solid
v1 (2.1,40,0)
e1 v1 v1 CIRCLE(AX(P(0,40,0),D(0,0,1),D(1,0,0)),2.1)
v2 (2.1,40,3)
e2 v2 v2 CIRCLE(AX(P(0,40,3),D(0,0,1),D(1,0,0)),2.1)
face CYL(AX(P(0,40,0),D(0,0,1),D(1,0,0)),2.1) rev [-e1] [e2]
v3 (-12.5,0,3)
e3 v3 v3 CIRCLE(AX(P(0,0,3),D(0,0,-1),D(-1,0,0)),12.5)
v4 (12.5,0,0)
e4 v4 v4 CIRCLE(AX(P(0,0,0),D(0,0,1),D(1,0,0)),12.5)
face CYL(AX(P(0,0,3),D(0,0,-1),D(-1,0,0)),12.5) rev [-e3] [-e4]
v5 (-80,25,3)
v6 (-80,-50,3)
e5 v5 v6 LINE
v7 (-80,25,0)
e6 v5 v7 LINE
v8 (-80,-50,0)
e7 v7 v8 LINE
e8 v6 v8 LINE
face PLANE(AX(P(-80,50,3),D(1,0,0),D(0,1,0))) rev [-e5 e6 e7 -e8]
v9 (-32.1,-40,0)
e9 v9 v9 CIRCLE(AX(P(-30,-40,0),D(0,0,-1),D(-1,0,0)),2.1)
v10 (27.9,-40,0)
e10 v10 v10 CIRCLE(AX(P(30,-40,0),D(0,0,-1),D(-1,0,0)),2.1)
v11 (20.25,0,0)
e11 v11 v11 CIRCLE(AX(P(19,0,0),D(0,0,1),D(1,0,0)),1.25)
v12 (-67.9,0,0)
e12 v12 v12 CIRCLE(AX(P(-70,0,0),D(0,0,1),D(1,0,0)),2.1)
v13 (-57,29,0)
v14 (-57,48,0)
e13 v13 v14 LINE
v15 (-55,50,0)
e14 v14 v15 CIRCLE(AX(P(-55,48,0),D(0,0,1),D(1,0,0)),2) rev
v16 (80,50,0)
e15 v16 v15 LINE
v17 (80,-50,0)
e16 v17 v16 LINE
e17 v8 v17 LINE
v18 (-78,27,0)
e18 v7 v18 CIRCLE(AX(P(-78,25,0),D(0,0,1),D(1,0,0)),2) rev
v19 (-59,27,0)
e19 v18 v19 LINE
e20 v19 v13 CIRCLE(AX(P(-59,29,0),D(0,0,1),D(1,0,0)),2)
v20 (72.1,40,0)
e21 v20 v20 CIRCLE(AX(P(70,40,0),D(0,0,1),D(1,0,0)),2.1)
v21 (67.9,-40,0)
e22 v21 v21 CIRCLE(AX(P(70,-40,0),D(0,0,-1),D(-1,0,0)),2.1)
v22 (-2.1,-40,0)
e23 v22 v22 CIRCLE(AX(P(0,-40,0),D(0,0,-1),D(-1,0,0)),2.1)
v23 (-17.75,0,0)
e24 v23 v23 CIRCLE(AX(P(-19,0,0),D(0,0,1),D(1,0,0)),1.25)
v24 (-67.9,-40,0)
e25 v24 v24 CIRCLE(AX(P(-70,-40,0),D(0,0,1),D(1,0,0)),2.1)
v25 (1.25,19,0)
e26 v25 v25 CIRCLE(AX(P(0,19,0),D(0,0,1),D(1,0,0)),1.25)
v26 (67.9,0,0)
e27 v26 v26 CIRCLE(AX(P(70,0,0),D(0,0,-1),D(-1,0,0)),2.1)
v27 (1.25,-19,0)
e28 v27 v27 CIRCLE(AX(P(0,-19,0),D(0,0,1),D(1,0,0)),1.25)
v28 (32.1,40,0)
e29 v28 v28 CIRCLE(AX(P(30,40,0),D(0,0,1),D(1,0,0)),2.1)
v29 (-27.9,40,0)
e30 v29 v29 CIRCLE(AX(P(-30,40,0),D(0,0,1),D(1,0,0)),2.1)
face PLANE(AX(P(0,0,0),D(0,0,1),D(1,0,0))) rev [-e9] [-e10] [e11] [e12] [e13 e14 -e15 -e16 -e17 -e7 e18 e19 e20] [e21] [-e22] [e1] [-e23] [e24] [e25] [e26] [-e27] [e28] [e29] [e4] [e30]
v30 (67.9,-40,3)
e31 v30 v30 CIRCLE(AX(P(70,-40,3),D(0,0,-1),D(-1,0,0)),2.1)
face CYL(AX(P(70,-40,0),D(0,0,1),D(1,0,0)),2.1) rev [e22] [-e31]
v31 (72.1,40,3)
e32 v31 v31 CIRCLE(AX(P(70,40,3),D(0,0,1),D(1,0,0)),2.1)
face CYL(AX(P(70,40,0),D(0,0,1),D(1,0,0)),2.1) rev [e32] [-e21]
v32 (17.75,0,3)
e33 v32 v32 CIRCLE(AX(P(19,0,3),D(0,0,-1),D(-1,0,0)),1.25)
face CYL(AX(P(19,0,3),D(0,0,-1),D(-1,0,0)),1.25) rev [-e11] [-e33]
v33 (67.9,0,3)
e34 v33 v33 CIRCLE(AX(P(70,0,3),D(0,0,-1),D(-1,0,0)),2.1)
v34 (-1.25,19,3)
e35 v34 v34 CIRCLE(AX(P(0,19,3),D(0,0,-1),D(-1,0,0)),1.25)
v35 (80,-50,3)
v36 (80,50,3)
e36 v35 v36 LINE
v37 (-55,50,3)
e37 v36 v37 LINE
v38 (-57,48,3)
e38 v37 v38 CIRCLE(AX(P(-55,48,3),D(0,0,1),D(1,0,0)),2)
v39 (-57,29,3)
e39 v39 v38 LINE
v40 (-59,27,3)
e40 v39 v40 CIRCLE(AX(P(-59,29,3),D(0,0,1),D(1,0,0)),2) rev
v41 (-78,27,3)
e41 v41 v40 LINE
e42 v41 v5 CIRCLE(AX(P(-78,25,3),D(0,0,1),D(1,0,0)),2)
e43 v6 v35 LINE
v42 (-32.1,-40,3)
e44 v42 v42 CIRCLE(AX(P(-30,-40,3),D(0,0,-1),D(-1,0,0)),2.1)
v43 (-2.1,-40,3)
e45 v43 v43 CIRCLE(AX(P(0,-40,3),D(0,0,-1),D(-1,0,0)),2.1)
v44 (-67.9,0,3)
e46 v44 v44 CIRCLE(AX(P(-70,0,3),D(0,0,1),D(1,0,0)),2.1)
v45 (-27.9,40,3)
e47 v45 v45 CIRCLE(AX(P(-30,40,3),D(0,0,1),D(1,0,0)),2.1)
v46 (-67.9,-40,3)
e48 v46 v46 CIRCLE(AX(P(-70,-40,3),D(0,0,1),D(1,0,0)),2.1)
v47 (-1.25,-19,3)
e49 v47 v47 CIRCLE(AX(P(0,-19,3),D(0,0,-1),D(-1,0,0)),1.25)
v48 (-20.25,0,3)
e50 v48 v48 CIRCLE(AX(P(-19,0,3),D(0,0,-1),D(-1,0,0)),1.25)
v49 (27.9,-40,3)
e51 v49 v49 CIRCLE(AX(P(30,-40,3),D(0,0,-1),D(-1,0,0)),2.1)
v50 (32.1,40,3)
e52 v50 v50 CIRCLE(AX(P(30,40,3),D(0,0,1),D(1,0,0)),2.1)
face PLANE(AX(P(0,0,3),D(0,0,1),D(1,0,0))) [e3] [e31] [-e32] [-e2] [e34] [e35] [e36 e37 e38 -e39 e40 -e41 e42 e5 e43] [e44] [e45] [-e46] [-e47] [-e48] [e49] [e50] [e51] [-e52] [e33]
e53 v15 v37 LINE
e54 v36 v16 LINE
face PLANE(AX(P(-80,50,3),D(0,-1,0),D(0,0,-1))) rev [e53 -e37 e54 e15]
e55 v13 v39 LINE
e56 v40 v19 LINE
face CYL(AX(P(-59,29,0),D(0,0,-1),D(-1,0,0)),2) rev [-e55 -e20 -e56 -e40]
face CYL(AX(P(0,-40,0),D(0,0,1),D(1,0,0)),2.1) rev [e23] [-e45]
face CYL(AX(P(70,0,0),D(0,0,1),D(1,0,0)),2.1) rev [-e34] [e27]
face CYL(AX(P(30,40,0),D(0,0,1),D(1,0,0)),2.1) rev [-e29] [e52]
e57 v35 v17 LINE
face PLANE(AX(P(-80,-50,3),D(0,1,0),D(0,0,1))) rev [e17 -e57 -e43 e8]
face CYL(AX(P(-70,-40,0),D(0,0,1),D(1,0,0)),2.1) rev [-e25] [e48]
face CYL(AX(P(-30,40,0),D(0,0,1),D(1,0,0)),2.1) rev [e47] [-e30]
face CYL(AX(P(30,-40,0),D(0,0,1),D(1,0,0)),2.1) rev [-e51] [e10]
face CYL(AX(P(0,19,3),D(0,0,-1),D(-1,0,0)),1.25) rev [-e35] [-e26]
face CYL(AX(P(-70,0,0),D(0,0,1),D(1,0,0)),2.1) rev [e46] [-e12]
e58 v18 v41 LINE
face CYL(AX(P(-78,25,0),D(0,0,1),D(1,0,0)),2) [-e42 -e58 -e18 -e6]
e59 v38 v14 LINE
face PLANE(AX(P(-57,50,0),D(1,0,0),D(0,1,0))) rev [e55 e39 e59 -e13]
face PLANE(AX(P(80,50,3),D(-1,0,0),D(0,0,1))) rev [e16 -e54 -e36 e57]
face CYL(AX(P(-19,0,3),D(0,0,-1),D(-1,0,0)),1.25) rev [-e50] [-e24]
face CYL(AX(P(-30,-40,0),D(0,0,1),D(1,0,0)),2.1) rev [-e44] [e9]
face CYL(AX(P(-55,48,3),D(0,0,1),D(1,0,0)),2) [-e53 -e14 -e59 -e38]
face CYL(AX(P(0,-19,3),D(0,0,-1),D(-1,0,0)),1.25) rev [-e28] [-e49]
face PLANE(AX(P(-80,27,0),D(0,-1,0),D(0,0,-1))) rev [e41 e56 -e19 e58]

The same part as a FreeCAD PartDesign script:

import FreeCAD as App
import Part
import Sketcher


def edges_at(feature, points):
    """Names of the edges that pass closest to the given points."""
    edges = feature.Shape.Edges
    near = lambda p: min(range(len(edges)), key=lambda i: edges[i].distToShape(Part.Vertex(*p))[0])
    return sorted({f"Edge{near(p) + 1}" for p in points})


def add_polygon(sketch, points):
    """Adds a closed chain of lines whose ends are joined by coincident constraints."""
    first, n = sketch.GeometryCount, len(points)
    for a, b in zip(points, points[1:] + points[:1]):
        sketch.addGeometry(Part.LineSegment(App.Vector(*a, 0), App.Vector(*b, 0)), False)
    for i in range(n):
        sketch.addConstraint(Sketcher.Constraint("Coincident", first + i, 2, first + (i + 1) % n, 1))

doc = App.newDocument("Part")
body = doc.addObject("PartDesign::Body", "Body")

# Sketch on XY plane
sketch1 = body.newObject("Sketcher::SketchObject", "Sketch")
sketch1.AttachmentSupport = (doc.getObject("XY_Plane"), [""])
sketch1.MapMode = "FlatFace"
add_polygon(sketch1, [(-80, 50), (-80, -50), (80, -50), (80, 50)])  # lines 0-3
sketch1.addConstraint(Sketcher.Constraint("Vertical", 0))
sketch1.addConstraint(Sketcher.Constraint("Horizontal", 1))
sketch1.addConstraint(Sketcher.Constraint("Vertical", 2))
sketch1.addConstraint(Sketcher.Constraint("Horizontal", 3))
sketch1.addConstraint(Sketcher.Constraint("Symmetric", 0, 2, 2, 2, -1, 1))
sketch1.addConstraint(Sketcher.Constraint("DistanceX", 1, 1, 1, 2, 160.0))
sketch1.addConstraint(Sketcher.Constraint("DistanceY", 0, 2, 0, 1, 100.0))
pad1 = body.newObject("PartDesign::Pad", "Pad")
pad1.Profile = sketch1
pad1.Length = 3

# Sketch on XY plane
sketch2 = body.newObject("Sketcher::SketchObject", "Sketch001")
sketch2.AttachmentSupport = (doc.getObject("XY_Plane"), [""])
sketch2.MapMode = "FlatFace"
sketch2.AttachmentOffset = App.Placement(App.Vector(0, 0, 3), App.Rotation())
sketch2.addGeometry(Part.Circle(App.Vector(-70, 40, 0), App.Vector(0, 0, 1), 2.1), False)
sketch2.addGeometry(Part.Circle(App.Vector(-30, 40, 0), App.Vector(0, 0, 1), 2.1), False)
sketch2.addGeometry(Part.Circle(App.Vector(0, 40, 0), App.Vector(0, 0, 1), 2.1), False)
sketch2.addGeometry(Part.Circle(App.Vector(30, 40, 0), App.Vector(0, 0, 1), 2.1), False)
sketch2.addGeometry(Part.Circle(App.Vector(70, 40, 0), App.Vector(0, 0, 1), 2.1), False)
sketch2.addGeometry(Part.Circle(App.Vector(-70, 0, 0), App.Vector(0, 0, 1), 2.1), False)
sketch2.addGeometry(Part.Circle(App.Vector(-70, -40, 0), App.Vector(0, 0, 1), 2.1), False)
sketch2.addGeometry(Part.Circle(App.Vector(-70, -80, 0), App.Vector(0, 0, 1), 2.1), False)
sketch2.addGeometry(Part.Circle(App.Vector(-70, -120, 0), App.Vector(0, 0, 1), 2.1), False)
sketch2.addGeometry(Part.Circle(App.Vector(-70, -160, 0), App.Vector(0, 0, 1), 2.1), False)
sketch2.addGeometry(Part.Circle(App.Vector(-70, -200, 0), App.Vector(0, 0, 1), 2.1), False)
sketch2.addGeometry(Part.Circle(App.Vector(-70, -240, 0), App.Vector(0, 0, 1), 2.1), False)
sketch2.addGeometry(Part.Circle(App.Vector(-70, -280, 0), App.Vector(0, 0, 1), 2.1), False)
sketch2.addGeometry(Part.Circle(App.Vector(70, -280, 0), App.Vector(0, 0, 1), 2.1), False)
sketch2.addGeometry(Part.Circle(App.Vector(70, -240, 0), App.Vector(0, 0, 1), 2.1), False)
sketch2.addGeometry(Part.Circle(App.Vector(70, -200, 0), App.Vector(0, 0, 1), 2.1), False)
sketch2.addGeometry(Part.Circle(App.Vector(70, -160, 0), App.Vector(0, 0, 1), 2.1), False)
sketch2.addGeometry(Part.Circle(App.Vector(70, -120, 0), App.Vector(0, 0, 1), 2.1), False)
sketch2.addGeometry(Part.Circle(App.Vector(70, -80, 0), App.Vector(0, 0, 1), 2.1), False)
sketch2.addGeometry(Part.Circle(App.Vector(70, -40, 0), App.Vector(0, 0, 1), 2.1), False)
sketch2.addGeometry(Part.Circle(App.Vector(70, 0, 0), App.Vector(0, 0, 1), 2.1), False)
sketch2.addGeometry(Part.Circle(App.Vector(30, -40, 0), App.Vector(0, 0, 1), 2.1), False)
sketch2.addGeometry(Part.Circle(App.Vector(0, -40, 0), App.Vector(0, 0, 1), 2.1), False)
sketch2.addGeometry(Part.Circle(App.Vector(-30, -40, 0), App.Vector(0, 0, 1), 2.1), False)
sketch2.addConstraint(Sketcher.Constraint("Equal", 0, 1))
sketch2.addConstraint(Sketcher.Constraint("Equal", 1, 2))
sketch2.addConstraint(Sketcher.Constraint("Equal", 2, 3))
sketch2.addConstraint(Sketcher.Constraint("Equal", 3, 4))
sketch2.addConstraint(Sketcher.Constraint("Equal", 4, 5))
sketch2.addConstraint(Sketcher.Constraint("Equal", 5, 6))
sketch2.addConstraint(Sketcher.Constraint("Equal", 6, 7))
sketch2.addConstraint(Sketcher.Constraint("Equal", 7, 8))
sketch2.addConstraint(Sketcher.Constraint("Equal", 8, 9))
sketch2.addConstraint(Sketcher.Constraint("Equal", 9, 10))
sketch2.addConstraint(Sketcher.Constraint("Equal", 10, 11))
sketch2.addConstraint(Sketcher.Constraint("Equal", 11, 12))
sketch2.addConstraint(Sketcher.Constraint("Equal", 12, 13))
sketch2.addConstraint(Sketcher.Constraint("Equal", 13, 14))
sketch2.addConstraint(Sketcher.Constraint("Equal", 14, 15))
sketch2.addConstraint(Sketcher.Constraint("Equal", 15, 16))
sketch2.addConstraint(Sketcher.Constraint("Equal", 16, 17))
sketch2.addConstraint(Sketcher.Constraint("Equal", 17, 18))
sketch2.addConstraint(Sketcher.Constraint("Equal", 18, 19))
sketch2.addConstraint(Sketcher.Constraint("Equal", 19, 20))
sketch2.addConstraint(Sketcher.Constraint("Equal", 20, 21))
sketch2.addConstraint(Sketcher.Constraint("Equal", 21, 22))
sketch2.addConstraint(Sketcher.Constraint("Equal", 22, 23))
sketch2.addConstraint(Sketcher.Constraint("Symmetric", 4, 3, 6, 3, -1, 1))
sketch2.addConstraint(Sketcher.Constraint("Symmetric", 0, 3, 19, 3, -1, 1))
sketch2.addConstraint(Sketcher.Constraint("Symmetric", 5, 3, 20, 3, -1, 1))
sketch2.addConstraint(Sketcher.Constraint("Symmetric", 1, 3, 21, 3, -1, 1))
sketch2.addConstraint(Sketcher.Constraint("Symmetric", 2, 3, 22, 3, -1, 1))
sketch2.addConstraint(Sketcher.Constraint("Symmetric", 3, 3, 23, 3, -1, 1))
sketch2.addConstraint(Sketcher.Constraint("Symmetric", 1, 3, 3, 3, -2))
sketch2.addConstraint(Sketcher.Constraint("Symmetric", 0, 3, 4, 3, -2))
sketch2.addConstraint(Sketcher.Constraint("Symmetric", 12, 3, 13, 3, -2))
sketch2.addConstraint(Sketcher.Constraint("Symmetric", 11, 3, 14, 3, -2))
sketch2.addConstraint(Sketcher.Constraint("Symmetric", 10, 3, 15, 3, -2))
sketch2.addConstraint(Sketcher.Constraint("Symmetric", 9, 3, 16, 3, -2))
sketch2.addConstraint(Sketcher.Constraint("Symmetric", 8, 3, 17, 3, -2))
sketch2.addConstraint(Sketcher.Constraint("Symmetric", 7, 3, 18, 3, -2))
sketch2.addConstraint(Sketcher.Constraint("PointOnObject", 2, 3, -2))
sketch2.addConstraint(Sketcher.Constraint("PointOnObject", 5, 3, -1))
sketch2.addConstraint(Sketcher.Constraint("Horizontal", 0, 3, 1, 3))
sketch2.addConstraint(Sketcher.Constraint("Horizontal", 1, 3, 2, 3))
sketch2.addConstraint(Sketcher.Constraint("Vertical", 0, 3, 5, 3))
sketch2.addConstraint(Sketcher.Constraint("Vertical", 6, 3, 7, 3))
sketch2.addConstraint(Sketcher.Constraint("Vertical", 7, 3, 8, 3))
sketch2.addConstraint(Sketcher.Constraint("Vertical", 8, 3, 9, 3))
sketch2.addConstraint(Sketcher.Constraint("Vertical", 9, 3, 10, 3))
sketch2.addConstraint(Sketcher.Constraint("Vertical", 10, 3, 11, 3))
sketch2.addConstraint(Sketcher.Constraint("Vertical", 11, 3, 12, 3))
sketch2.addConstraint(Sketcher.Constraint("Diameter", 0, 4.2))
sketch2.addConstraint(Sketcher.Constraint("DistanceX", 0, 3, -1, 1, 70.0))
sketch2.addConstraint(Sketcher.Constraint("DistanceY", -1, 1, 0, 3, 40.0))
sketch2.addConstraint(Sketcher.Constraint("DistanceX", 1, 3, -1, 1, 30.0))
sketch2.addConstraint(Sketcher.Constraint("DistanceY", 7, 3, -1, 1, 80.0))
sketch2.addConstraint(Sketcher.Constraint("DistanceY", 8, 3, -1, 1, 120.0))
sketch2.addConstraint(Sketcher.Constraint("DistanceY", 9, 3, -1, 1, 160.0))
sketch2.addConstraint(Sketcher.Constraint("DistanceY", 10, 3, -1, 1, 200.0))
sketch2.addConstraint(Sketcher.Constraint("DistanceY", 11, 3, -1, 1, 240.0))
sketch2.addConstraint(Sketcher.Constraint("DistanceY", 12, 3, -1, 1, 280.0))
pocket1 = body.newObject("PartDesign::Pocket", "Pocket")
pocket1.Profile = sketch2
pocket1.Type = "ThroughAll"

# Sketch on XY plane
sketch3 = body.newObject("Sketcher::SketchObject", "Sketch002")
sketch3.AttachmentSupport = (doc.getObject("XY_Plane"), [""])
sketch3.MapMode = "FlatFace"
sketch3.addGeometry(Part.Circle(App.Vector(-19, 0, 0), App.Vector(0, 0, 1), 1.2), False)
sketch3.addGeometry(Part.Circle(App.Vector(0, -19, 0), App.Vector(0, 0, 1), 1.2), False)
sketch3.addGeometry(Part.Circle(App.Vector(19, 0, 0), App.Vector(0, 0, 1), 1.2), False)
sketch3.addGeometry(Part.Circle(App.Vector(0, 19, 0), App.Vector(0, 0, 1), 1.2), False)
sketch3.addConstraint(Sketcher.Constraint("Equal", 0, 1))
sketch3.addConstraint(Sketcher.Constraint("Equal", 1, 2))
sketch3.addConstraint(Sketcher.Constraint("Equal", 2, 3))
sketch3.addConstraint(Sketcher.Constraint("Symmetric", 0, 3, 2, 3, -1, 1))
sketch3.addConstraint(Sketcher.Constraint("Symmetric", 1, 3, 3, 3, -1, 1))
sketch3.addConstraint(Sketcher.Constraint("PointOnObject", 0, 3, -1))
sketch3.addConstraint(Sketcher.Constraint("PointOnObject", 1, 3, -2))
sketch3.addConstraint(Sketcher.Constraint("Diameter", 0, 2.5))
sketch3.addConstraint(Sketcher.Constraint("DistanceX", 0, 3, -1, 1, 19.0))
sketch3.addConstraint(Sketcher.Constraint("DistanceY", 1, 3, -1, 1, 19.0))
pocket2 = body.newObject("PartDesign::Pocket", "Pocket001")
pocket2.Profile = sketch3
pocket2.Type = "ThroughAll"
pocket2.Midplane = True

# Sketch on XY plane
sketch4 = body.newObject("Sketcher::SketchObject", "Sketch003")
sketch4.AttachmentSupport = (doc.getObject("XY_Plane"), [""])
sketch4.MapMode = "FlatFace"
sketch4.addGeometry(Part.Circle(App.Vector(0, 0, 0), App.Vector(0, 0, 1), 12), False)
sketch4.addConstraint(Sketcher.Constraint("Coincident", 0, 3, -1, 1))
sketch4.addConstraint(Sketcher.Constraint("Diameter", 0, 25.0))
pocket3 = body.newObject("PartDesign::Pocket", "Pocket002")
pocket3.Profile = sketch4
pocket3.Type = "ThroughAll"
pocket3.Midplane = True

# Sketch on XY plane
sketch5 = body.newObject("Sketcher::SketchObject", "Sketch004")
sketch5.AttachmentSupport = (doc.getObject("XY_Plane"), [""])
sketch5.MapMode = "FlatFace"
sketch5.AttachmentOffset = App.Placement(App.Vector(0, 0, 3), App.Rotation())
add_polygon(sketch5, [(-80, 50), (-80, 27), (-57, 27), (-57, 50)])  # lines 0-3
sketch5.addConstraint(Sketcher.Constraint("Vertical", 0))
sketch5.addConstraint(Sketcher.Constraint("Horizontal", 1))
sketch5.addConstraint(Sketcher.Constraint("Vertical", 2))
sketch5.addConstraint(Sketcher.Constraint("Horizontal", 3))
sketch5.addConstraint(Sketcher.Constraint("Equal", 3, 0))
sketch5.addConstraint(Sketcher.Constraint("DistanceX", 1, 1, 1, 2, 23.0))
sketch5.addConstraint(Sketcher.Constraint("DistanceX", 0, 2, -1, 1, 80.0))
sketch5.addConstraint(Sketcher.Constraint("DistanceY", -1, 1, 0, 2, 27.0))
pocket4 = body.newObject("PartDesign::Pocket", "Pocket003")
pocket4.Profile = sketch5
pocket4.Type = "ThroughAll"
pocket4.Midplane = True
doc.recompute()

fillet = body.newObject("PartDesign::Fillet", "Fillet")
fillet.Base = (pocket4, edges_at(pocket4, [(-80, 27, 1.5), (-57, 50, 1.5), (-57, 27, 1.5)]))
fillet.Radius = 2

doc.recompute()
